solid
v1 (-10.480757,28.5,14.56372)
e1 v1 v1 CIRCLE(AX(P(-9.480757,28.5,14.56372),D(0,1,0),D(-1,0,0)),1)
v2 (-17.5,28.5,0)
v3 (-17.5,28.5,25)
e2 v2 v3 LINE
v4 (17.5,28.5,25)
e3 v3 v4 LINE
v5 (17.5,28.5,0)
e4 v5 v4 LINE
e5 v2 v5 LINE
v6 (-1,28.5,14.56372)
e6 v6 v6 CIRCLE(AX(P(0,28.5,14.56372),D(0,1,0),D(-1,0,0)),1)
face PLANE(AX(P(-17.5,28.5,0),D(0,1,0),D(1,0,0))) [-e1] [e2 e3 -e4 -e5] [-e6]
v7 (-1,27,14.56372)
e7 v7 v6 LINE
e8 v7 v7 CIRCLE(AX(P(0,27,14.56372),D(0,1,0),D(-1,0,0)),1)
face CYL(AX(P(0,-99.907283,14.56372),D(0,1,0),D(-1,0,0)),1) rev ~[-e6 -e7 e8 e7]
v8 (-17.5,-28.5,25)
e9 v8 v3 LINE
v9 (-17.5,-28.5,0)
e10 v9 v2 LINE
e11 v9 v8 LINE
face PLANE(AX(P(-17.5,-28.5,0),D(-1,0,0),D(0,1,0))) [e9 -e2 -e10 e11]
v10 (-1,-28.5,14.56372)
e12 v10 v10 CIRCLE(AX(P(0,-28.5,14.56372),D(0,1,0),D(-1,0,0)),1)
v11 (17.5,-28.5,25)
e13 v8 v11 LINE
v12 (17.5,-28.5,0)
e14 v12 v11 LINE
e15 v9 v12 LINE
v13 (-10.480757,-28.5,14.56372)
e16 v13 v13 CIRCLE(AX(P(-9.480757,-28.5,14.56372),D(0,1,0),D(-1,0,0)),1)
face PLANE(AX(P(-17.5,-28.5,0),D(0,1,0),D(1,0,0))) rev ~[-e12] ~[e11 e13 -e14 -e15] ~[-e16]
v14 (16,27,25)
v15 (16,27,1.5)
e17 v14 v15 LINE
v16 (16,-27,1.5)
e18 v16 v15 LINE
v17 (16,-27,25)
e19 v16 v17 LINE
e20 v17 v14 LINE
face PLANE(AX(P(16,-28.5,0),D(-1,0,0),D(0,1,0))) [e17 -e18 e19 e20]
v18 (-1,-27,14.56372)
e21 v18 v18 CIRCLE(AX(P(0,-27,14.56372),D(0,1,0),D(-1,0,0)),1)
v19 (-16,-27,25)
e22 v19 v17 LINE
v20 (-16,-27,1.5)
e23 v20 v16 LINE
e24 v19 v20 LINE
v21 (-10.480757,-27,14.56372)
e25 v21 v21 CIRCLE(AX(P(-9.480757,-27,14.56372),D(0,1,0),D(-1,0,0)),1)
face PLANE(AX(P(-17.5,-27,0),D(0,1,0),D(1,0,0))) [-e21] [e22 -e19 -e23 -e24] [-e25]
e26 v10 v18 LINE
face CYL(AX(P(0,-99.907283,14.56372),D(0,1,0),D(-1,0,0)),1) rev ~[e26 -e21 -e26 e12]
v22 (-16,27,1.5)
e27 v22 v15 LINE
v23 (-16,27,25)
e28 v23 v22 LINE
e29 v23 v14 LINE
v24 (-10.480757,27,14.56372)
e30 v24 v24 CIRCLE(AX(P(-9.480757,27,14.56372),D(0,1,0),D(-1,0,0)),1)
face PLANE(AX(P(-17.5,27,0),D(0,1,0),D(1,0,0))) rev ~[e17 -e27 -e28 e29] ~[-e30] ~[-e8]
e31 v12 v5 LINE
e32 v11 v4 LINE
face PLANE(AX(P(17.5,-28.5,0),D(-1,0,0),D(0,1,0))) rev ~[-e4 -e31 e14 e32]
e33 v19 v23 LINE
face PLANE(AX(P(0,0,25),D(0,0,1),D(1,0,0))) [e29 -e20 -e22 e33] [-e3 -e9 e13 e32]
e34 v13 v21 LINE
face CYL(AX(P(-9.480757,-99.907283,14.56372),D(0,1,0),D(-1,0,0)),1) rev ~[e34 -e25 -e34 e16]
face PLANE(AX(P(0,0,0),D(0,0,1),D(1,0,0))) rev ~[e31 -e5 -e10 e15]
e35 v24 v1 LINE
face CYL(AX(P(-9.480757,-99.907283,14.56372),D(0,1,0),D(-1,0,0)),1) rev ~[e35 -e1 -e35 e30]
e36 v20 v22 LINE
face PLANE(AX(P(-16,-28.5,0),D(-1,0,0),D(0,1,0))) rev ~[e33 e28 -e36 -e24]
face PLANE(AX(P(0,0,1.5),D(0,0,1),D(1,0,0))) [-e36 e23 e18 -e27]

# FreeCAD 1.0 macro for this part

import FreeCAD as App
import Part
import Sketcher
from FreeCAD import Vector
Q = App.Units.Quantity


def faces_at(feature, points):
    """Names of the faces that lie closest to the given points."""
    faces = feature.Shape.Faces
    near = lambda p: min(range(len(faces)), key=lambda i: faces[i].distToShape(Part.Vertex(*p))[0])
    return sorted({f"Face{near(p) + 1}" for p in points})

doc = App.newDocument("Part")
body = doc.addObject("PartDesign::Body", "Body")

sketch1 = doc.addObject("Sketcher::SketchObject", "Sketch")
body.addObject(sketch1)
sketch1.AttachmentSupport = (doc.XY_Plane, [""])
sketch1.MapMode = "FlatFace"
sketch1.addGeometry([
    Part.LineSegment(Vector(-18, 28, 0), Vector(-18, -28, 0)),
    Part.LineSegment(Vector(-18, -28, 0), Vector(18, -28, 0)),
    Part.LineSegment(Vector(18, -28, 0), Vector(18, 28, 0)),
    Part.LineSegment(Vector(18, 28, 0), Vector(-18, 28, 0)),
], False)
sketch1.addConstraint([
    Sketcher.Constraint("Coincident", 0, 2, 1, 1),
    Sketcher.Constraint("Coincident", 1, 2, 2, 1),
    Sketcher.Constraint("Coincident", 2, 2, 3, 1),
    Sketcher.Constraint("Coincident", 3, 2, 0, 1),
    Sketcher.Constraint("Vertical", 0),
    Sketcher.Constraint("Horizontal", 1),
    Sketcher.Constraint("Vertical", 2),
    Sketcher.Constraint("Horizontal", 3),
    Sketcher.Constraint("Symmetric", 0, 2, 2, 2, -1, 1),
    Sketcher.Constraint("DistanceX", 1, 1, 1, 2, Q("35 mm")),
    Sketcher.Constraint("DistanceY", 0, 2, 0, 1, Q("57 mm")),
])
pad1 = doc.addObject("PartDesign::Pad", "Pad")
body.addObject(pad1)
pad1.Profile = sketch1
pad1.Length = 25
doc.recompute()

thickness = doc.addObject("PartDesign::Thickness", "Thickness")
body.addObject(thickness)
thickness.Base = (pad1, faces_at(pad1, [(0, 0, 25)]))
thickness.Value = 1.5
thickness.Reversed = True
thickness.Join = "Arc"

sketch2 = doc.addObject("Sketcher::SketchObject", "Sketch001")
body.addObject(sketch2)
sketch2.AttachmentSupport = (doc.XZ_Plane, [""])
sketch2.MapMode = "FlatFace"
sketch2.AttachmentOffset = App.Placement(Vector(0, 0, 28.5), App.Rotation())
sketch2.addGeometry([
    Part.Circle(Vector(-9.5, 14.6, 0), Vector(0, 0, 1), 1),
    Part.Circle(Vector(0, 14.6, 0), Vector(0, 0, 1), 1),
], False)
sketch2.addConstraint([
    Sketcher.Constraint("Equal", 0, 1),
    Sketcher.Constraint("PointOnObject", 1, 3, -2),
    Sketcher.Constraint("Horizontal", 0, 3, 1, 3),
    Sketcher.Constraint("Diameter", 0, Q("2 mm")),
    Sketcher.Constraint("DistanceY", -1, 1, 0, 3, Q("14.56372 mm")),
    Sketcher.Constraint("DistanceX", 0, 3, -1, 1, Q("9.480757 mm")),
])
doc.recompute()
hole = doc.addObject("PartDesign::Hole", "Hole")
body.addObject(hole)
hole.Profile = sketch2
hole.ThreadType = "None"
hole.Diameter = 2
hole.DepthType = "ThroughAll"

doc.recompute()
